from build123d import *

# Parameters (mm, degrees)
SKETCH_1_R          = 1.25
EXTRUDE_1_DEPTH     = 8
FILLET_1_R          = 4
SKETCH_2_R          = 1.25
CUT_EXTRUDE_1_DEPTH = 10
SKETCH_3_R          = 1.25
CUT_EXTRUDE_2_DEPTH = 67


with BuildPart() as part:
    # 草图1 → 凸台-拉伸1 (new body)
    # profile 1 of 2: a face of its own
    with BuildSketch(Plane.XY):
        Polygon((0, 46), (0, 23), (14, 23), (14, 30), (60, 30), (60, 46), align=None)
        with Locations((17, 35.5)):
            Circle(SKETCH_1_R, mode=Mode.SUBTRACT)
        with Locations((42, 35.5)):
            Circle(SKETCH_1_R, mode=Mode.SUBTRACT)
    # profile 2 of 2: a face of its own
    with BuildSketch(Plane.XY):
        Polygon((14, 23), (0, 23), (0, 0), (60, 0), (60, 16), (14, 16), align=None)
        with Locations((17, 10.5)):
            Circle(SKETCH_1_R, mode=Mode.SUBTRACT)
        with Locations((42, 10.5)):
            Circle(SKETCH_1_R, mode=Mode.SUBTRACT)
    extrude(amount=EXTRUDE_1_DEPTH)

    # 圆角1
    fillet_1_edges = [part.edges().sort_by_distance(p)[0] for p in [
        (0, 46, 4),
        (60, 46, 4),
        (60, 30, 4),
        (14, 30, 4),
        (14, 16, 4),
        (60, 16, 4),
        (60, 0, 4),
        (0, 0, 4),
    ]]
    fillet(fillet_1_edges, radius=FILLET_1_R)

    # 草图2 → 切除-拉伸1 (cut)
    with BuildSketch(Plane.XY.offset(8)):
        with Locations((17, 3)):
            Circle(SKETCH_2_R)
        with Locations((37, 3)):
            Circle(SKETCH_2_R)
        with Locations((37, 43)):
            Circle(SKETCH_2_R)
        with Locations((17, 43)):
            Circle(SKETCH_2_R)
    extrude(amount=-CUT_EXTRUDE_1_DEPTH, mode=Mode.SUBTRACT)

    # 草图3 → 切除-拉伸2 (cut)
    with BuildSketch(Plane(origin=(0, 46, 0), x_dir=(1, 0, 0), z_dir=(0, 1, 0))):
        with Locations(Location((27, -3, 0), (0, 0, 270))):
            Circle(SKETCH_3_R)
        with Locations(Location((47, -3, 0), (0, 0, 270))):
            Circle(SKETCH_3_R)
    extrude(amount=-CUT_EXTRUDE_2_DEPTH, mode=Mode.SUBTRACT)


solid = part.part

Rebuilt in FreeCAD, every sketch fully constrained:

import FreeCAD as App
import Part
import Sketcher


def edges_at(feature, points):
    """Names of the edges that pass closest to the given points."""
    edges = feature.Shape.Edges
    near = lambda p: min(range(len(edges)), key=lambda i: edges[i].distToShape(Part.Vertex(*p))[0])
    return sorted({f"Edge{near(p) + 1}" for p in points})


def add_polygon(sketch, points):
    """Adds a closed chain of lines whose ends are joined by coincident constraints."""
    first, n = sketch.GeometryCount, len(points)
    for a, b in zip(points, points[1:] + points[:1]):
        sketch.addGeometry(Part.LineSegment(App.Vector(*a, 0), App.Vector(*b, 0)), False)
    for i in range(n):
        sketch.addConstraint(Sketcher.Constraint("Coincident", first + i, 2, first + (i + 1) % n, 1))

doc = App.newDocument("Part")
params = doc.addObject("Spreadsheet::Sheet", "Params")
for row, (alias, value) in enumerate([
    ("sketch1_diameter", "2.5 mm"),
    ("sketch1_width", "60 mm"),
    ("sketch1_width2", "46 mm"),
    ("sketch1_height", "16 mm"),
    ("pad1_length", "8 mm"),
    ("fillet_radius", "4 mm"),
    ("sketch2_diameter", "2.5 mm"),
    ("pocket1_length", "10 mm"),
    ("sketch3_diameter", "2.5 mm"),
    ("pocket2_length", "67 mm"),
], start=1):
    params.set(f"A{row}", alias)
    params.set(f"B{row}", "=" + value)
    params.setAlias(f"B{row}", alias)

body = doc.addObject("PartDesign::Body", "Body")

sketch1 = body.newObject("Sketcher::SketchObject", "Sketch")
sketch1.AttachmentSupport = (doc.getObject("XY_Plane"), [""])
sketch1.MapMode = "FlatFace"
add_polygon(sketch1, [(0, 46), (0, 0), (60, 0), (60, 16), (14, 16), (14, 30), (60, 30), (60, 46)])
sketch1.addGeometry(Part.Circle(App.Vector(17, 35.5, 0), App.Vector(0, 0, 1), 1.2), False)
sketch1.addGeometry(Part.Circle(App.Vector(42, 35.5, 0), App.Vector(0, 0, 1), 1.2), False)
sketch1.addGeometry(Part.Circle(App.Vector(42, 10.5, 0), App.Vector(0, 0, 1), 1.2), False)
sketch1.addGeometry(Part.Circle(App.Vector(17, 10.5, 0), App.Vector(0, 0, 1), 1.2), False)
sketch1.addConstraint([
    Sketcher.Constraint("Vertical", 0),
    Sketcher.Constraint("Horizontal", 1),
    Sketcher.Constraint("Vertical", 2),
    Sketcher.Constraint("Horizontal", 3),
    Sketcher.Constraint("Vertical", 4),
    Sketcher.Constraint("Horizontal", 5),
    Sketcher.Constraint("Vertical", 6),
    Sketcher.Constraint("Horizontal", 7),
    Sketcher.Constraint("Coincident", 0, 2, -1, 1),
    Sketcher.Constraint("Equal", 8, 9),
    Sketcher.Constraint("Equal", 9, 10),
    Sketcher.Constraint("Equal", 10, 11),
    Sketcher.Constraint("Horizontal", 8, 3, 9, 3),
    Sketcher.Constraint("Horizontal", 10, 3, 11, 3),
    Sketcher.Constraint("Vertical", 9, 3, 10, 3),
    Sketcher.Constraint("Vertical", 8, 3, 11, 3),
    Sketcher.Constraint("Vertical", 2, 2, 5, 2),
    Sketcher.Constraint("Equal", 5, 0),
    Sketcher.Constraint("Equal", 2, 6),
    Sketcher.Constraint("Diameter", 8, 2.5),
    Sketcher.Constraint("DistanceX", 1, 1, 1, 2, 60.0),
    Sketcher.Constraint("DistanceX", 3, 2, 3, 1, 46.0),
    Sketcher.Constraint("DistanceY", 2, 1, 2, 2, 16.0),
    Sketcher.Constraint("DistanceX", -1, 1, 8, 3, 17.0),
    Sketcher.Constraint("DistanceX", -1, 1, 9, 3, 42.0),
    Sketcher.Constraint("DistanceY", 10, 3, 9, 3, 25.0),
    Sketcher.Constraint("DistanceY", -1, 1, 8, 3, 35.5),
])
sketch1.setExpression("Constraints[27]", "Params.sketch1_diameter")
sketch1.setExpression("Constraints[28]", "Params.sketch1_width")
sketch1.setExpression("Constraints[29]", "Params.sketch1_width2")
sketch1.setExpression("Constraints[30]", "Params.sketch1_height")
pad1 = body.newObject("PartDesign::Pad", "Pad")
pad1.Profile = sketch1
pad1.setExpression("Length", "Params.pad1_length")
doc.recompute()

fillet = body.newObject("PartDesign::Fillet", "Fillet")
fillet.Base = (pad1, edges_at(pad1, [
    (0, 46, 4),
    (60, 46, 4),
    (60, 30, 4),
    (14, 30, 4),
    (14, 16, 4),
    (60, 16, 4),
    (60, 0, 4),
    (0, 0, 4),
]))
fillet.setExpression("Radius", "Params.fillet_radius")

sketch2 = body.newObject("Sketcher::SketchObject", "Sketch001")
sketch2.AttachmentSupport = (doc.getObject("XY_Plane"), [""])
sketch2.MapMode = "FlatFace"
sketch2.AttachmentOffset = App.Placement(App.Vector(0, 0, 8), App.Rotation())
sketch2.addGeometry([
    Part.Circle(App.Vector(17, 3, 0), App.Vector(0, 0, 1), 1.2),
    Part.Circle(App.Vector(37, 3, 0), App.Vector(0, 0, 1), 1.2),
    Part.Circle(App.Vector(37, 43, 0), App.Vector(0, 0, 1), 1.2),
    Part.Circle(App.Vector(17, 43, 0), App.Vector(0, 0, 1), 1.2),
], False)
sketch2.addConstraint([
    Sketcher.Constraint("Equal", 0, 1),
    Sketcher.Constraint("Equal", 1, 2),
    Sketcher.Constraint("Equal", 2, 3),
    Sketcher.Constraint("Horizontal", 0, 3, 1, 3),
    Sketcher.Constraint("Horizontal", 2, 3, 3, 3),
    Sketcher.Constraint("Vertical", 1, 3, 2, 3),
    Sketcher.Constraint("Vertical", 0, 3, 3, 3),
    Sketcher.Constraint("Diameter", 0, 2.5),
    Sketcher.Constraint("DistanceX", -1, 1, 0, 3, 17.0),
    Sketcher.Constraint("DistanceY", -1, 1, 0, 3, 3.0),
    Sketcher.Constraint("DistanceX", -1, 1, 1, 3, 37.0),
    Sketcher.Constraint("DistanceY", -1, 1, 2, 3, 43.0),
])
sketch2.setExpression("Constraints[7]", "Params.sketch2_diameter")
pocket1 = body.newObject("PartDesign::Pocket", "Pocket")
pocket1.Profile = sketch2
pocket1.setExpression("Length", "Params.pocket1_length")

sketch3 = body.newObject("Sketcher::SketchObject", "Sketch002")
sketch3.AttachmentSupport = (doc.getObject("XZ_Plane"), [""])
sketch3.MapMode = "FlatFace"
sketch3.AttachmentOffset = App.Placement(App.Vector(0, 0, -46), App.Rotation())
sketch3.addGeometry([
    Part.Circle(App.Vector(27, 3, 0), App.Vector(0, 0, 1), 1.2),
    Part.Circle(App.Vector(47, 3, 0), App.Vector(0, 0, 1), 1.2),
], False)
sketch3.addConstraint([
    Sketcher.Constraint("Equal", 0, 1),
    Sketcher.Constraint("Horizontal", 0, 3, 1, 3),
    Sketcher.Constraint("Diameter", 0, 2.5),
    Sketcher.Constraint("DistanceX", -1, 1, 0, 3, 27.0),
    Sketcher.Constraint("DistanceY", -1, 1, 0, 3, 3.0),
    Sketcher.Constraint("DistanceX", -1, 1, 1, 3, 47.0),
])
sketch3.setExpression("Constraints[2]", "Params.sketch3_diameter")
pocket2 = body.newObject("PartDesign::Pocket", "Pocket001")
pocket2.Profile = sketch3
pocket2.setExpression("Length", "Params.pocket2_length")
pocket2.Reversed = True

doc.recompute()
